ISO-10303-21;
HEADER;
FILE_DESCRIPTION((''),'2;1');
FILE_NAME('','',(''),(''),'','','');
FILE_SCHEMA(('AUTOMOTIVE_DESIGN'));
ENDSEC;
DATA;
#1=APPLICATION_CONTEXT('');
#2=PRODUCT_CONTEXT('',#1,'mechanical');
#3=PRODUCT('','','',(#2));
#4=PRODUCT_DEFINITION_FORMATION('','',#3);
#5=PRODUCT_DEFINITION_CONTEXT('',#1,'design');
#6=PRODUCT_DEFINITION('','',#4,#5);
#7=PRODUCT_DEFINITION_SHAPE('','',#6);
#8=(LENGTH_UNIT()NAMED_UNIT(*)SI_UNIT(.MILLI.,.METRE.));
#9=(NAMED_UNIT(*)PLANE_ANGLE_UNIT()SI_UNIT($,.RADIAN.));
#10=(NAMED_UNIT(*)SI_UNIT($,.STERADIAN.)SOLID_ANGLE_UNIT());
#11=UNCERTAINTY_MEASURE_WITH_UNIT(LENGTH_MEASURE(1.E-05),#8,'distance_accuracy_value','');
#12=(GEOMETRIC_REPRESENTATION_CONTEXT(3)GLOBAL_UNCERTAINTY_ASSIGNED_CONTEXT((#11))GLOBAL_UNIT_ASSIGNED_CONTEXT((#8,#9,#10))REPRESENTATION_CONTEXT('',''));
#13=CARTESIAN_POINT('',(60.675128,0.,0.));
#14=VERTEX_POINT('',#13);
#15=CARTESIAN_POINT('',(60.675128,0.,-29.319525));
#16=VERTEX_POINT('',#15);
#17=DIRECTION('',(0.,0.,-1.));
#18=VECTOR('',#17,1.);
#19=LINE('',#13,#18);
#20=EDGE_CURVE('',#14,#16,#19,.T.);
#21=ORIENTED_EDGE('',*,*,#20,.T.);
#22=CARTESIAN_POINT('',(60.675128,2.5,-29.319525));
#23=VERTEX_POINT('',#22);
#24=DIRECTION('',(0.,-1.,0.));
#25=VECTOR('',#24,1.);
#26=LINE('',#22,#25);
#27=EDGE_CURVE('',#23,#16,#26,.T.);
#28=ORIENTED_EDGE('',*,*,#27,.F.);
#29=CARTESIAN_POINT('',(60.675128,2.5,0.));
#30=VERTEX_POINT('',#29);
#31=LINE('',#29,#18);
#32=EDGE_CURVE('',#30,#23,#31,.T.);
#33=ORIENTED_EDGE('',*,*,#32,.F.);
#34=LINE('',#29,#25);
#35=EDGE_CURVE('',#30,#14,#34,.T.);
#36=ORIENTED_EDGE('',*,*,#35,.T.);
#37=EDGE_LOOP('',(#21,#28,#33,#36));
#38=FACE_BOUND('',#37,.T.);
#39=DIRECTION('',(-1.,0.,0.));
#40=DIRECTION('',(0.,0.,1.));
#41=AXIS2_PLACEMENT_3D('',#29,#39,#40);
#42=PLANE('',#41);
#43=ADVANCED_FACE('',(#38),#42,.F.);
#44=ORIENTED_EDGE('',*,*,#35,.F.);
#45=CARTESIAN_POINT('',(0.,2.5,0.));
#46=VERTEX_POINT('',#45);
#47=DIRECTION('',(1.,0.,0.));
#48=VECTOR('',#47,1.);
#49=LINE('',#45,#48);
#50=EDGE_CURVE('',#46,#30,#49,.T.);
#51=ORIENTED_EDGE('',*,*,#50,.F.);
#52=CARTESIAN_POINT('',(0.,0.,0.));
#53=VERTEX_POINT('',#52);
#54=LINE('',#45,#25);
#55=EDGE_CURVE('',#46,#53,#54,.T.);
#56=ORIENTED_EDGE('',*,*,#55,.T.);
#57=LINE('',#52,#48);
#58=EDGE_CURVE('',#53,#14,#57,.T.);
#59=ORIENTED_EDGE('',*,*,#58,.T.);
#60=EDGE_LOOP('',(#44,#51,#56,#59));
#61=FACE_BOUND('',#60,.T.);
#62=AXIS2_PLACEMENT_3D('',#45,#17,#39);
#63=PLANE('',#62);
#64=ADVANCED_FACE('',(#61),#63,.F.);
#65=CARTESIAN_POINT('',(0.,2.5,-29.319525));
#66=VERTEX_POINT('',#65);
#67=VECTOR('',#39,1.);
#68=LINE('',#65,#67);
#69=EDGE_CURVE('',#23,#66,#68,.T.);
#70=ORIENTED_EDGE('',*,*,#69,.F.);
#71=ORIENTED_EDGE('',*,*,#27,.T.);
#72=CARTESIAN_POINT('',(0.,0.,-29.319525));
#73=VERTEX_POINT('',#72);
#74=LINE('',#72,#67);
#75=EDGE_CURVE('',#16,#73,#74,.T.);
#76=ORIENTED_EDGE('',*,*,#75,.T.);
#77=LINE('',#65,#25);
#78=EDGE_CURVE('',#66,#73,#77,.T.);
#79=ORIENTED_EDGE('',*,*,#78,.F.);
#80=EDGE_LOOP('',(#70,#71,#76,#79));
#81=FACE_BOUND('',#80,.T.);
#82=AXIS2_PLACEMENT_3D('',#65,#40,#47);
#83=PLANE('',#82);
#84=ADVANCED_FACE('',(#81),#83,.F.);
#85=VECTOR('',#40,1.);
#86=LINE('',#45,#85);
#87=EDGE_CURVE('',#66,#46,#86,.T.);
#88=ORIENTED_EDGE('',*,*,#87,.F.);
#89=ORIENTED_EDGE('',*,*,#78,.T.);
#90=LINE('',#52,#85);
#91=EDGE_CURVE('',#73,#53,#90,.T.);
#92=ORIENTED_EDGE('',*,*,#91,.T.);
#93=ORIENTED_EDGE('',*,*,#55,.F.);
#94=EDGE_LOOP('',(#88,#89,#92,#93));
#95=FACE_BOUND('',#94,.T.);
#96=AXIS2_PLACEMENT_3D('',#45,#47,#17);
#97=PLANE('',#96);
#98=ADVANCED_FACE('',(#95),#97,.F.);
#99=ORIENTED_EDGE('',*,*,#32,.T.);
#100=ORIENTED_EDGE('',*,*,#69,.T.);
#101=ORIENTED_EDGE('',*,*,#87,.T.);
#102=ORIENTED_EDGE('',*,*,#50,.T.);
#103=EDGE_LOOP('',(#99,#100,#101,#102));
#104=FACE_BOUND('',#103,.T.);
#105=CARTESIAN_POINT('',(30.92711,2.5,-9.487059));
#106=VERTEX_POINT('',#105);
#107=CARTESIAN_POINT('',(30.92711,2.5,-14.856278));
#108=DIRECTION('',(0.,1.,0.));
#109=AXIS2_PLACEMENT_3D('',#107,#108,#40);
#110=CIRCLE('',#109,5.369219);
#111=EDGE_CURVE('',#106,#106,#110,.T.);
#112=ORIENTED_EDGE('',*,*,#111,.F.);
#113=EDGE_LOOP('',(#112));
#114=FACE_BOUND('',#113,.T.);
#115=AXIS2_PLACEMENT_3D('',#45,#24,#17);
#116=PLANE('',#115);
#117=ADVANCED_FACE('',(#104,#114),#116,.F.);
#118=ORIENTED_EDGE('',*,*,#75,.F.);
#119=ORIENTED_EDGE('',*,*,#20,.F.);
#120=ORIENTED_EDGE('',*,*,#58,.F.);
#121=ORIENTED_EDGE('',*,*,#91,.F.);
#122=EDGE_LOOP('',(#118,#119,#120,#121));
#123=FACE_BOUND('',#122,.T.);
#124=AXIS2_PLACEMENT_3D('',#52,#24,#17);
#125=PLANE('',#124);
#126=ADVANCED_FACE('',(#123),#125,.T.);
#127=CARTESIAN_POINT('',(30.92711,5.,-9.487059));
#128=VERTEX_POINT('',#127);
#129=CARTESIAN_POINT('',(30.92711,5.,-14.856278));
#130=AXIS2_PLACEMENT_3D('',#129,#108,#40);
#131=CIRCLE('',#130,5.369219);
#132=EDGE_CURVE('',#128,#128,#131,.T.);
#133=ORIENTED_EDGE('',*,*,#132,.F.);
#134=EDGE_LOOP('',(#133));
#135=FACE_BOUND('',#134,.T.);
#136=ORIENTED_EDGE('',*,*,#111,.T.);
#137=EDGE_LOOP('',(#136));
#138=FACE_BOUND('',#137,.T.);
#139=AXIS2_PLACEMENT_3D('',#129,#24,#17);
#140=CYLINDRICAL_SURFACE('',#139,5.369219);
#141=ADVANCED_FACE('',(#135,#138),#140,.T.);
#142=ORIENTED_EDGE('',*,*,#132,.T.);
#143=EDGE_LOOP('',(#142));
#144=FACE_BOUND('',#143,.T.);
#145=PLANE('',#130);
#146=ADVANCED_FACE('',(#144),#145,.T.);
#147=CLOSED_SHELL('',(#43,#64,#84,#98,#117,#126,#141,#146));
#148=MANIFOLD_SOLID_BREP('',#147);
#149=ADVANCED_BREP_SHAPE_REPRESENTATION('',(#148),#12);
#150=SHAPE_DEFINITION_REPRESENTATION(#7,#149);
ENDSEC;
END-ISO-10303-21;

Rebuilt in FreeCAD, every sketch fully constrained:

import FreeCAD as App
import Part
import Sketcher
from FreeCAD import Vector
Q = App.Units.Quantity


def add_polygon(sketch, points):
    """Adds a closed chain of lines whose ends are joined by coincident constraints."""
    first, n = sketch.GeometryCount, len(points)
    for a, b in zip(points, points[1:] + points[:1]):
        sketch.addGeometry(Part.LineSegment(App.Vector(*a, 0), App.Vector(*b, 0)), False)
    for i in range(n):
        sketch.addConstraint(Sketcher.Constraint("Coincident", first + i, 2, first + (i + 1) % n, 1))

doc = App.newDocument("Part")
body = doc.addObject("PartDesign::Body", "Body")

sketch1 = body.newObject("Sketcher::SketchObject", "Sketch")
sketch1.AttachmentSupport = (doc.getObject("XZ_Plane"), [""])
sketch1.MapMode = "FlatFace"
add_polygon(sketch1, [(0, -29), (0, 0), (61, 0), (61, -29)])
sketch1.addConstraint([
    Sketcher.Constraint("Vertical", 0),
    Sketcher.Constraint("Horizontal", 1),
    Sketcher.Constraint("Vertical", 2),
    Sketcher.Constraint("Horizontal", 3),
    Sketcher.Constraint("Coincident", 0, 2, -1, 1),
    Sketcher.Constraint("DistanceX", 1, 1, 1, 2, Q("60.675128 mm")),
    Sketcher.Constraint("DistanceY", 0, 1, 0, 2, Q("29.319525 mm")),
])
pad1 = body.newObject("PartDesign::Pad", "Pad")
pad1.Profile = sketch1
pad1.Length = 2.5
pad1.Reversed = True

sketch2 = body.newObject("Sketcher::SketchObject", "Sketch001")
sketch2.AttachmentSupport = (doc.getObject("XZ_Plane"), [""])
sketch2.MapMode = "FlatFace"
sketch2.AttachmentOffset = App.Placement(Vector(0, 0, -2.5), App.Rotation())
sketch2.addGeometry(Part.Circle(Vector(31, -15, 0), Vector(0, 0, 1), 5), False)
sketch2.addConstraint([
    Sketcher.Constraint("Diameter", 0, Q("10.738438 mm")),
    Sketcher.Constraint("DistanceX", -1, 1, 0, 3, Q("30.92711 mm")),
    Sketcher.Constraint("DistanceY", 0, 3, -1, 1, Q("14.856278 mm")),
])
pad2 = body.newObject("PartDesign::Pad", "Pad001")
pad2.Profile = sketch2
pad2.Length = 2.5
pad2.Reversed = True

doc.recompute()
